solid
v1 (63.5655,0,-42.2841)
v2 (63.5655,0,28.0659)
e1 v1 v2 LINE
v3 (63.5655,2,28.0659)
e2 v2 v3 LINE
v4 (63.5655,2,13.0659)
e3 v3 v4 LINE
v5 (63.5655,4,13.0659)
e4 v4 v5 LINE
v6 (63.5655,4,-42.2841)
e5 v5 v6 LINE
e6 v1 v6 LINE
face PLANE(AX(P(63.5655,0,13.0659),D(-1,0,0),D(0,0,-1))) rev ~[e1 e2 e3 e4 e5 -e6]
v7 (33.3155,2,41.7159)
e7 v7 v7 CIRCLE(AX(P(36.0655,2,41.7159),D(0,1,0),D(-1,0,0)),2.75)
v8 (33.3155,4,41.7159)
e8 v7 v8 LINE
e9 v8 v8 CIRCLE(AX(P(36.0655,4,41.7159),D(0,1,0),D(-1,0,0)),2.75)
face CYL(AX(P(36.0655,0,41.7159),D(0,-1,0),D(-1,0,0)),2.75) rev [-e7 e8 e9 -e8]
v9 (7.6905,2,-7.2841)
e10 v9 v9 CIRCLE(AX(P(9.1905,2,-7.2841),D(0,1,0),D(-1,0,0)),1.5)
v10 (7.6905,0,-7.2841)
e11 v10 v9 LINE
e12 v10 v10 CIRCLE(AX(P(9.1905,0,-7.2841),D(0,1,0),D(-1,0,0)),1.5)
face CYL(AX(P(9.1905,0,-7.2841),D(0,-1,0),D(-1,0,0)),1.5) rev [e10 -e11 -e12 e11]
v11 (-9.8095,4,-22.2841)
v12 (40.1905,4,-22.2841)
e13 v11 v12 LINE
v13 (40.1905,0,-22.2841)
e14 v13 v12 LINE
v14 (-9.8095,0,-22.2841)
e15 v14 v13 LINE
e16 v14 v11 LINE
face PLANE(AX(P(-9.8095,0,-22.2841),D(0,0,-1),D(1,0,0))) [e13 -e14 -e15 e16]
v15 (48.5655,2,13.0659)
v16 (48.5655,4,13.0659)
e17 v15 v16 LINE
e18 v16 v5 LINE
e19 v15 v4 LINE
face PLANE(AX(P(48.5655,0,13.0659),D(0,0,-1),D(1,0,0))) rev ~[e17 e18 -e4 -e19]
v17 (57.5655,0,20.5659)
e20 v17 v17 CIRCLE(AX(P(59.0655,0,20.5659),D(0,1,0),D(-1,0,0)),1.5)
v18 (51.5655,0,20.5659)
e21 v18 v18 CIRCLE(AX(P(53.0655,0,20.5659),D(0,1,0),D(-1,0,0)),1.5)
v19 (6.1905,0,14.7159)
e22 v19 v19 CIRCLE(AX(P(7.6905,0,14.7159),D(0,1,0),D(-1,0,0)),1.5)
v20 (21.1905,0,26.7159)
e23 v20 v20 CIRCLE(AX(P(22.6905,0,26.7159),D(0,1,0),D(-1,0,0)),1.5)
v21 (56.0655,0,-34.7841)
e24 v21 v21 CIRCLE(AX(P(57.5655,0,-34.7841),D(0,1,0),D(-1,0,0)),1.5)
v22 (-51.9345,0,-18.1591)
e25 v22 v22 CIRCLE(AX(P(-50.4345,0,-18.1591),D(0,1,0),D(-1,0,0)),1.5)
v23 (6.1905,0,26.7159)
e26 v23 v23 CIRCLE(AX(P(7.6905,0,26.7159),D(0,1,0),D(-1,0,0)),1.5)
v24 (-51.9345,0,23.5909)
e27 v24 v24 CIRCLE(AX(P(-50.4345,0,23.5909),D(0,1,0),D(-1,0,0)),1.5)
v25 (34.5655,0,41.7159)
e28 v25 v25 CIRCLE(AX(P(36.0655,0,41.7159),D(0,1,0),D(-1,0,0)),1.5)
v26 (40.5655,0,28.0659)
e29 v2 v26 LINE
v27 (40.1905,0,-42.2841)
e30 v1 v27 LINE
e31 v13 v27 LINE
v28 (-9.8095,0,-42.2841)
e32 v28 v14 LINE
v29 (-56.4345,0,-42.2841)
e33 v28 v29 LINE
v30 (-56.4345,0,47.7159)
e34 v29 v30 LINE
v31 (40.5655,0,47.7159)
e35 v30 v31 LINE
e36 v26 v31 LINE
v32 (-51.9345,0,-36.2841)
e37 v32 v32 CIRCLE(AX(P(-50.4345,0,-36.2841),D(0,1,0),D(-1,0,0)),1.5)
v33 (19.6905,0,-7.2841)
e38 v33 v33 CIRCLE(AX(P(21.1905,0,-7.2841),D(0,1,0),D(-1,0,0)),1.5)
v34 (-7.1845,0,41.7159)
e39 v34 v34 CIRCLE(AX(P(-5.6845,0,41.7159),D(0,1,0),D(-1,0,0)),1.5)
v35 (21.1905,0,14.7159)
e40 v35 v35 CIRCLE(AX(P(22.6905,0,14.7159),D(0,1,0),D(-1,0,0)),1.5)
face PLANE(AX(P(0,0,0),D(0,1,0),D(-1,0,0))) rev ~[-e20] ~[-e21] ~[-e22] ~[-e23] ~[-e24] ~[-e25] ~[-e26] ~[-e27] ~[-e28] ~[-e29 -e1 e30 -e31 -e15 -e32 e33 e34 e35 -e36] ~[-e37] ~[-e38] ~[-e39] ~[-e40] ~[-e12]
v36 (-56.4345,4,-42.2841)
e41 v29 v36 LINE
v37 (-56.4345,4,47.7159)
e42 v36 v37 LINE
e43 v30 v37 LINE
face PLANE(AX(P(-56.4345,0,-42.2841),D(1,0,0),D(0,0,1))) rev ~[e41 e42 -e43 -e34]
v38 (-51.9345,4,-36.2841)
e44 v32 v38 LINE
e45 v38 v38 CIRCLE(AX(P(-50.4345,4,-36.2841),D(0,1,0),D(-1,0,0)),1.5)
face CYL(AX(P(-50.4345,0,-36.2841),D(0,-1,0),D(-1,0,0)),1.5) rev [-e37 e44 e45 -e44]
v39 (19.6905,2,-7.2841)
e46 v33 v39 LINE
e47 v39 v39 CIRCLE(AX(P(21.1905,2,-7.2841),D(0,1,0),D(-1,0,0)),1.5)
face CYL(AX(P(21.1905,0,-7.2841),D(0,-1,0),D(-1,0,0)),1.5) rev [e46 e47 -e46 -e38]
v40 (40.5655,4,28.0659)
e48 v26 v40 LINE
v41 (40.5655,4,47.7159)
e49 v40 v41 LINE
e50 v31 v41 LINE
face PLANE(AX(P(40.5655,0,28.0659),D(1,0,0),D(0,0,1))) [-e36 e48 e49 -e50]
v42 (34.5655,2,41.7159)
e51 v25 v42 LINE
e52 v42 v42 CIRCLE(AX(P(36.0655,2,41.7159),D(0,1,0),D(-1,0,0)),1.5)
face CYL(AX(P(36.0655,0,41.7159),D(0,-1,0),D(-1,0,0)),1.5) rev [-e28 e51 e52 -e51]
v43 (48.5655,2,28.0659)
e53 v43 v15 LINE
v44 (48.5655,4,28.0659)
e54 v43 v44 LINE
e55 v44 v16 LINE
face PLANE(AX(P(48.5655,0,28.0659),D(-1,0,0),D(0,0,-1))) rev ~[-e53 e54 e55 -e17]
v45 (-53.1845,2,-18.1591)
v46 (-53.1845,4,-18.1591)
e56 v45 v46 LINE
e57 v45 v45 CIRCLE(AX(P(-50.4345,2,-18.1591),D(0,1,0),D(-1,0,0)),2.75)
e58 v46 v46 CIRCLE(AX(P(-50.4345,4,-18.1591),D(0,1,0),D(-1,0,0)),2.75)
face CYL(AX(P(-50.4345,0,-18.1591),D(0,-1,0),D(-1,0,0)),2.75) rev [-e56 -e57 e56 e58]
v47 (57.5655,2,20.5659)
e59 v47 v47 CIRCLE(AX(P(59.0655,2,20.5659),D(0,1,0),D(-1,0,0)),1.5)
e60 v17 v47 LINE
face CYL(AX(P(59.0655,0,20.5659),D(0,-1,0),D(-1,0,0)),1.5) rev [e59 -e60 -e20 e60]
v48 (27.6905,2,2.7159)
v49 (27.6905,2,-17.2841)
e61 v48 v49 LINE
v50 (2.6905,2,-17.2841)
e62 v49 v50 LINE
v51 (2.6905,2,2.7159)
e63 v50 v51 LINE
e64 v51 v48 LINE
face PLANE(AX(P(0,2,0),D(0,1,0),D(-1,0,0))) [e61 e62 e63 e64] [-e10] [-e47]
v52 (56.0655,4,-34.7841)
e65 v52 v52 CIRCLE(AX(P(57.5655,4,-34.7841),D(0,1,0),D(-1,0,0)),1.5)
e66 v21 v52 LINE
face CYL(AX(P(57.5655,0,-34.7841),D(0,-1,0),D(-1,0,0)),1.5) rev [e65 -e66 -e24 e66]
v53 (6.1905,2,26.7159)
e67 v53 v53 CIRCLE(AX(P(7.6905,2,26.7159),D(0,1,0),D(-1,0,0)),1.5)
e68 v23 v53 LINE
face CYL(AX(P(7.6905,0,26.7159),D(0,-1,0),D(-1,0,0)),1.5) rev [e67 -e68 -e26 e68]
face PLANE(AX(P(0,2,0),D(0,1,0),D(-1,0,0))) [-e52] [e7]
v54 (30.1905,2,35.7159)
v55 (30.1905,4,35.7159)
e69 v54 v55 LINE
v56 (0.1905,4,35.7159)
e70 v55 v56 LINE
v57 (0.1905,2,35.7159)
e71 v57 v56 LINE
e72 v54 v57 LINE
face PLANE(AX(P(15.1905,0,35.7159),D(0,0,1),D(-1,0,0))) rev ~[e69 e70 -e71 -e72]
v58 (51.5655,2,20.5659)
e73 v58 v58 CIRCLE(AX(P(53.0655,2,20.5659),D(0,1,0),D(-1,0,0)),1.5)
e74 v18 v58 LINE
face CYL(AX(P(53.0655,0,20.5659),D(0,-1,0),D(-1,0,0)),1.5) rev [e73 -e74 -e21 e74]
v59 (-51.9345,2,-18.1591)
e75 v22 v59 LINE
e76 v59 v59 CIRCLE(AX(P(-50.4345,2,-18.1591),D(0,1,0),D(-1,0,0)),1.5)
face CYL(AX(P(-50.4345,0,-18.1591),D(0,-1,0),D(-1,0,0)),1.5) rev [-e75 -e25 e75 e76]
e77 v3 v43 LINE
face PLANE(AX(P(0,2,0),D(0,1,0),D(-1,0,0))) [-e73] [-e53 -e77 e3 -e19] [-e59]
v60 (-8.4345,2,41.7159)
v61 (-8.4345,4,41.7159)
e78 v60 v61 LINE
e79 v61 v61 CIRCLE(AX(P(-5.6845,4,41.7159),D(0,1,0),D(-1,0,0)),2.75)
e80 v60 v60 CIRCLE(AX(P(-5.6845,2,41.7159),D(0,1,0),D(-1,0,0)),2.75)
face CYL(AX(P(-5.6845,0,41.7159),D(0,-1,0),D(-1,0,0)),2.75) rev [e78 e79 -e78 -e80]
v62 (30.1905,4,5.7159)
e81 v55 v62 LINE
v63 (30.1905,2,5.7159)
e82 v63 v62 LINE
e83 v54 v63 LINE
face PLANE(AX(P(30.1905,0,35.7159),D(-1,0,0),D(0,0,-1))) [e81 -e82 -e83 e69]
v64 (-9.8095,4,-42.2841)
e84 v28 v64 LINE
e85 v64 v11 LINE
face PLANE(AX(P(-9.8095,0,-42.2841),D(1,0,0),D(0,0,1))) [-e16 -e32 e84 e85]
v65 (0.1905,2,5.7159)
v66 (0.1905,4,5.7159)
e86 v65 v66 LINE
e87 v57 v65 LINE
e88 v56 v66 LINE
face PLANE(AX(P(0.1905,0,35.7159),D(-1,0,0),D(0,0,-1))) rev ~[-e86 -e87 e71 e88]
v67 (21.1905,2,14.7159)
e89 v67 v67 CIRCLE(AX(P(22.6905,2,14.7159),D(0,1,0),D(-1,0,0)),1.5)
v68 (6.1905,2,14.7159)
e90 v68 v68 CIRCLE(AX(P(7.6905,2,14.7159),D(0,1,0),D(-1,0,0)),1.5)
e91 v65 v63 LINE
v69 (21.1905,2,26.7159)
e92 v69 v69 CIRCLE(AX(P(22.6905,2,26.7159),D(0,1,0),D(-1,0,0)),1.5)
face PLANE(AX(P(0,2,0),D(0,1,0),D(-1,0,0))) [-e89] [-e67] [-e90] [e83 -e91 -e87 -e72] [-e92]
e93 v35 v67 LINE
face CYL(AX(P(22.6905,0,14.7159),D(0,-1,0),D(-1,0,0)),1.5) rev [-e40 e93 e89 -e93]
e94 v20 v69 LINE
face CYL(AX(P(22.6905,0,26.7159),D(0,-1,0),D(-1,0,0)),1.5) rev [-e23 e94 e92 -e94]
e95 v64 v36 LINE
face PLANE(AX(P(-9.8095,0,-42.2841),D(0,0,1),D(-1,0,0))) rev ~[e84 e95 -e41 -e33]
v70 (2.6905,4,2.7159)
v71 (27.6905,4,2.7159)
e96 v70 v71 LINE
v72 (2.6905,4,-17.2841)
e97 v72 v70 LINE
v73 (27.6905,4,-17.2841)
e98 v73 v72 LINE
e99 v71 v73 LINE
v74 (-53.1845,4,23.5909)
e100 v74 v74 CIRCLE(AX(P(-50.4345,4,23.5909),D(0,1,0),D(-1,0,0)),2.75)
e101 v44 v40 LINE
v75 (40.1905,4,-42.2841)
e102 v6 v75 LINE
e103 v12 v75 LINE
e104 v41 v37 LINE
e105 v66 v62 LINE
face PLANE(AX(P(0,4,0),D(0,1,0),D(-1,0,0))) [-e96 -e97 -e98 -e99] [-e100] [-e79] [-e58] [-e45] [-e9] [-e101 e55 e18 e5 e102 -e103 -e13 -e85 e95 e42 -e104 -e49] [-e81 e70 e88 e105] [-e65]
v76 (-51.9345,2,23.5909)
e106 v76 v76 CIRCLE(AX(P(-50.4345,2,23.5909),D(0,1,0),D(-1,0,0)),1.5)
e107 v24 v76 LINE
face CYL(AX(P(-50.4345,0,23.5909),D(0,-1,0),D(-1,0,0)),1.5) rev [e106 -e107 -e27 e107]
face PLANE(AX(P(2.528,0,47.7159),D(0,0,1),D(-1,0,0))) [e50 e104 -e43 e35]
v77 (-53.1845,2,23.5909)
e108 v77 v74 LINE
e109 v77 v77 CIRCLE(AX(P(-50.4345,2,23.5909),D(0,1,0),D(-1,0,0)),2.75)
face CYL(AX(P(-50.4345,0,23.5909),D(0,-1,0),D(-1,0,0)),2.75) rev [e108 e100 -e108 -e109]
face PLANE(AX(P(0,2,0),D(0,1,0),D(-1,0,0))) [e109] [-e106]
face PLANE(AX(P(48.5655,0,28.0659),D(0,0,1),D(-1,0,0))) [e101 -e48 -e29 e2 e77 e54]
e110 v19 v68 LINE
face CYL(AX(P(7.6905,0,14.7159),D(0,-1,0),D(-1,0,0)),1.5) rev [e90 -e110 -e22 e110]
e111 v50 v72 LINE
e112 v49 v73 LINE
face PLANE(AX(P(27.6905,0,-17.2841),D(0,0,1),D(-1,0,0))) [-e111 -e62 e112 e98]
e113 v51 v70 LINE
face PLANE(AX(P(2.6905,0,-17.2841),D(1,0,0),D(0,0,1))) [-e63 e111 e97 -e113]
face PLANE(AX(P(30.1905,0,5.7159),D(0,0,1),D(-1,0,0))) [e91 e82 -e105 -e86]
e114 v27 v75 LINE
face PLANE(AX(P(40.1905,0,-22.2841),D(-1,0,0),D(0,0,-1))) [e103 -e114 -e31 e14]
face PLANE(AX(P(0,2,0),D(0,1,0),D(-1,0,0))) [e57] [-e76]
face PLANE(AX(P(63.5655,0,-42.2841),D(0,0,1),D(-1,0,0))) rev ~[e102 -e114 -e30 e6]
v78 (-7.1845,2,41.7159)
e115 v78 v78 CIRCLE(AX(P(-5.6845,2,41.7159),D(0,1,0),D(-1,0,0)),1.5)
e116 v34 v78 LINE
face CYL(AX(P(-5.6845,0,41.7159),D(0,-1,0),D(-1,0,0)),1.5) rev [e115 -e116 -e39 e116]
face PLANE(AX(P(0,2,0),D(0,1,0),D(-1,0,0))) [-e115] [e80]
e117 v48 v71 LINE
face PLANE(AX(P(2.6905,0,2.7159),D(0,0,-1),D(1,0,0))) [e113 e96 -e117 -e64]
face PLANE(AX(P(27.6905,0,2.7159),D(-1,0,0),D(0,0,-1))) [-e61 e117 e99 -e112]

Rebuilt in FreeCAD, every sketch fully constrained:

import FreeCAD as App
import Part
import Sketcher


def add_polygon(sketch, points):
    """Adds a closed chain of lines whose ends are joined by coincident constraints."""
    first, n = sketch.GeometryCount, len(points)
    for a, b in zip(points, points[1:] + points[:1]):
        sketch.addGeometry(Part.LineSegment(App.Vector(*a, 0), App.Vector(*b, 0)), False)
    for i in range(n):
        sketch.addConstraint(Sketcher.Constraint("Coincident", first + i, 2, first + (i + 1) % n, 1))

doc = App.newDocument("Part")
body = doc.addObject("PartDesign::Body", "Body")

# Sketch on XZ plane
sketch1 = body.newObject("Sketcher::SketchObject", "Sketch")
sketch1.AttachmentSupport = (doc.getObject("XZ_Plane"), [""])
sketch1.MapMode = "FlatFace"
add_polygon(sketch1, [(-56.4, 47.7), (40.6, 47.7), (40.6, 28.1), (48.6, 28.1), (48.6, 13.1), (63.6, 13.1), (63.6, -42.3), (40.2, -42.3), (40.2, -22.3), (-9.8, -22.3), (-9.8, -42.3), (-56.4, -42.3)])  # lines 0-11
sketch1.addGeometry(Part.Circle(App.Vector(57.6, -34.8, 0), App.Vector(0, 0, 1), 1.5), False)  # 12
add_polygon(sketch1, [(27.7, -17.3), (27.7, 2.7), (2.7, 2.7), (2.7, -17.3)])  # lines 13-16
sketch1.addGeometry(Part.Circle(App.Vector(-50.4, -36.3, 0), App.Vector(0, 0, 1), 1.5), False)  # 17
sketch1.addGeometry(Part.Circle(App.Vector(-50.4, -18.2, 0), App.Vector(0, 0, 1), 2.8), False)  # 18
add_polygon(sketch1, [(0.2, 35.7), (0.2, 5.7), (30.2, 5.7), (30.2, 35.7)])  # lines 19-22
sketch1.addGeometry(Part.Circle(App.Vector(36.1, 41.7, 0), App.Vector(0, 0, 1), 2.8), False)  # 23
sketch1.addGeometry(Part.Circle(App.Vector(-50.4, 23.6, 0), App.Vector(0, 0, 1), 2.8), False)  # 24
sketch1.addGeometry(Part.Circle(App.Vector(-5.7, 41.7, 0), App.Vector(0, 0, 1), 2.8), False)  # 25
sketch1.addConstraint(Sketcher.Constraint("Horizontal", 0))
sketch1.addConstraint(Sketcher.Constraint("Vertical", 1))
sketch1.addConstraint(Sketcher.Constraint("Horizontal", 2))
sketch1.addConstraint(Sketcher.Constraint("Vertical", 3))
sketch1.addConstraint(Sketcher.Constraint("Horizontal", 4))
sketch1.addConstraint(Sketcher.Constraint("Vertical", 5))
sketch1.addConstraint(Sketcher.Constraint("Horizontal", 6))
sketch1.addConstraint(Sketcher.Constraint("Vertical", 7))
sketch1.addConstraint(Sketcher.Constraint("Horizontal", 8))
sketch1.addConstraint(Sketcher.Constraint("Vertical", 9))
sketch1.addConstraint(Sketcher.Constraint("Horizontal", 10))
sketch1.addConstraint(Sketcher.Constraint("Vertical", 11))
sketch1.addConstraint(Sketcher.Constraint("Vertical", 13))
sketch1.addConstraint(Sketcher.Constraint("Horizontal", 14))
sketch1.addConstraint(Sketcher.Constraint("Vertical", 15))
sketch1.addConstraint(Sketcher.Constraint("Horizontal", 16))
sketch1.addConstraint(Sketcher.Constraint("Vertical", 19))
sketch1.addConstraint(Sketcher.Constraint("Horizontal", 20))
sketch1.addConstraint(Sketcher.Constraint("Vertical", 21))
sketch1.addConstraint(Sketcher.Constraint("Horizontal", 22))
sketch1.addConstraint(Sketcher.Constraint("Equal", 12, 17))
sketch1.addConstraint(Sketcher.Constraint("Equal", 18, 23))
sketch1.addConstraint(Sketcher.Constraint("Equal", 23, 24))
sketch1.addConstraint(Sketcher.Constraint("Equal", 24, 25))
sketch1.addConstraint(Sketcher.Constraint("Horizontal", 23, 3, 25, 3))
sketch1.addConstraint(Sketcher.Constraint("Horizontal", 6, 2, 9, 2))
sketch1.addConstraint(Sketcher.Constraint("Vertical", 17, 3, 18, 3))
sketch1.addConstraint(Sketcher.Constraint("Vertical", 18, 3, 24, 3))
sketch1.addConstraint(Sketcher.Constraint("Equal", 4, 3))
sketch1.addConstraint(Sketcher.Constraint("Equal", 9, 13))
sketch1.addConstraint(Sketcher.Constraint("Equal", 22, 19))
sketch1.addConstraint(Sketcher.Constraint("Diameter", 18, 5.5))
sketch1.addConstraint(Sketcher.Constraint("DistanceX", 2, 1, 2, 2, 8.0))
sketch1.addConstraint(Sketcher.Constraint("Diameter", 12, 3.0))
sketch1.addConstraint(Sketcher.Constraint("DistanceX", 2, 2, 12, 3, 9.0))
sketch1.addConstraint(Sketcher.Constraint("DistanceY", 21, 2, 0, 2, 12.0))
sketch1.addConstraint(Sketcher.Constraint("DistanceY", 5, 2, 12, 3, 7.5))
sketch1.addConstraint(Sketcher.Constraint("DistanceX", 0, 1, 0, 2, 97.0))
sketch1.addConstraint(Sketcher.Constraint("DistanceX", 4, 1, 4, 2, 15.0))
sketch1.addConstraint(Sketcher.Constraint("DistanceX", 8, 2, 8, 1, 50.0))
sketch1.addConstraint(Sketcher.Constraint("DistanceX", 14, 2, 14, 1, 25.0))
sketch1.addConstraint(Sketcher.Constraint("DistanceX", 20, 1, 20, 2, 30.0))
sketch1.addConstraint(Sketcher.Constraint("DistanceY", 7, 1, 7, 2, 20.0))
sketch1.addConstraint(Sketcher.Constraint("DistanceY", 11, 1, 11, 2, 90.0))
sketch1.addConstraint(Sketcher.Constraint("DistanceX", 17, 3, 12, 3, 108.0))
sketch1.addConstraint(Sketcher.Constraint("DistanceY", 17, 3, 23, 3, 78.0))
sketch1.addConstraint(Sketcher.Constraint("DistanceY", 23, 3, 0, 2, 6.0))
sketch1.addConstraint(Sketcher.Constraint("DistanceY", 7, 2, 13, 2, 25.0))
sketch1.addConstraint(Sketcher.Constraint("DistanceX", 8, 2, 19, 2, 10.0))
sketch1.addConstraint(Sketcher.Constraint("DistanceY", 1, 2, 1, 1, 19.65))
sketch1.addConstraint(Sketcher.Constraint("DistanceX", 23, 3, 12, 3, 21.5))
sketch1.addConstraint(Sketcher.Constraint("DistanceX", 13, 2, 7, 2, 12.5))
sketch1.addConstraint(Sketcher.Constraint("DistanceX", 6, 2, 6, 1, 23.375))
sketch1.addConstraint(Sketcher.Constraint("DistanceY", 18, 3, 24, 3, 41.75))
sketch1.addConstraint(Sketcher.Constraint("DistanceX", 25, 3, 23, 3, 41.75))
sketch1.addConstraint(Sketcher.Constraint("DistanceY", 12, 3, -1, 1, 34.784))
sketch1.addConstraint(Sketcher.Constraint("DistanceY", 18, 3, -1, 1, 18.159))
sketch1.addConstraint(Sketcher.Constraint("DistanceX", -1, 1, 12, 3, 57.5655))
pad1 = body.newObject("PartDesign::Pad", "Pad")
pad1.Profile = sketch1
pad1.Length = 4
pad1.Reversed = True

# Sketch on XZ plane
sketch2 = body.newObject("Sketcher::SketchObject", "Sketch001")
sketch2.AttachmentSupport = (doc.getObject("XZ_Plane"), [""])
sketch2.MapMode = "FlatFace"
add_polygon(sketch2, [(0.2, 5.7), (0.2, 35.7), (30.2, 35.7), (30.2, 5.7)])  # lines 0-3
sketch2.addGeometry(Part.Circle(App.Vector(7.7, 14.7, 0), App.Vector(0, 0, 1), 1.5), False)  # 4
sketch2.addGeometry(Part.Circle(App.Vector(7.7, 26.7, 0), App.Vector(0, 0, 1), 1.5), False)  # 5
sketch2.addGeometry(Part.Circle(App.Vector(22.7, 26.7, 0), App.Vector(0, 0, 1), 1.5), False)  # 6
sketch2.addGeometry(Part.Circle(App.Vector(22.7, 14.7, 0), App.Vector(0, 0, 1), 1.5), False)  # 7
sketch2.addGeometry(Part.Circle(App.Vector(-5.7, 41.7, 0), App.Vector(0, 0, 1), 2.8), False)  # 8
sketch2.addGeometry(Part.Circle(App.Vector(-5.7, 41.7, 0), App.Vector(0, 0, 1), 1.5), False)  # 9
add_polygon(sketch2, [(48.6, 13.1), (48.6, 28.1), (63.6, 28.1), (63.6, 13.1)])  # lines 10-13
sketch2.addGeometry(Part.Circle(App.Vector(59.1, 20.6, 0), App.Vector(0, 0, 1), 1.5), False)  # 14
sketch2.addGeometry(Part.Circle(App.Vector(53.1, 20.6, 0), App.Vector(0, 0, 1), 1.5), False)  # 15
sketch2.addGeometry(Part.Circle(App.Vector(-50.4, -18.2, 0), App.Vector(0, 0, 1), 2.8), False)  # 16
sketch2.addGeometry(Part.Circle(App.Vector(-50.4, -18.2, 0), App.Vector(0, 0, 1), 1.5), False)  # 17
sketch2.addGeometry(Part.Circle(App.Vector(-50.4, 23.6, 0), App.Vector(0, 0, 1), 2.8), False)  # 18
sketch2.addGeometry(Part.Circle(App.Vector(-50.4, 23.6, 0), App.Vector(0, 0, 1), 1.5), False)  # 19
sketch2.addGeometry(Part.Circle(App.Vector(36.1, 41.7, 0), App.Vector(0, 0, 1), 2.8), False)  # 20
sketch2.addGeometry(Part.Circle(App.Vector(36.1, 41.7, 0), App.Vector(0, 0, 1), 1.5), False)  # 21
add_polygon(sketch2, [(2.7, 2.7), (27.7, 2.7), (27.7, -17.3), (2.7, -17.3)])  # lines 22-25
sketch2.addGeometry(Part.Circle(App.Vector(21.2, -7.3, 0), App.Vector(0, 0, 1), 1.5), False)  # 26
sketch2.addGeometry(Part.Circle(App.Vector(9.2, -7.3, 0), App.Vector(0, 0, 1), 1.5), False)  # 27
sketch2.addConstraint(Sketcher.Constraint("Vertical", 0))
sketch2.addConstraint(Sketcher.Constraint("Horizontal", 1))
sketch2.addConstraint(Sketcher.Constraint("Vertical", 2))
sketch2.addConstraint(Sketcher.Constraint("Horizontal", 3))
sketch2.addConstraint(Sketcher.Constraint("Vertical", 10))
sketch2.addConstraint(Sketcher.Constraint("Horizontal", 11))
sketch2.addConstraint(Sketcher.Constraint("Vertical", 12))
sketch2.addConstraint(Sketcher.Constraint("Horizontal", 13))
sketch2.addConstraint(Sketcher.Constraint("Horizontal", 22))
sketch2.addConstraint(Sketcher.Constraint("Vertical", 23))
sketch2.addConstraint(Sketcher.Constraint("Horizontal", 24))
sketch2.addConstraint(Sketcher.Constraint("Vertical", 25))
sketch2.addConstraint(Sketcher.Constraint("Coincident", 9, 3, 8, 3))
sketch2.addConstraint(Sketcher.Constraint("Coincident", 17, 3, 16, 3))
sketch2.addConstraint(Sketcher.Constraint("Coincident", 19, 3, 18, 3))
sketch2.addConstraint(Sketcher.Constraint("Coincident", 21, 3, 20, 3))
sketch2.addConstraint(Sketcher.Constraint("Equal", 4, 5))
sketch2.addConstraint(Sketcher.Constraint("Equal", 5, 6))
sketch2.addConstraint(Sketcher.Constraint("Equal", 6, 7))
sketch2.addConstraint(Sketcher.Constraint("Equal", 7, 9))
sketch2.addConstraint(Sketcher.Constraint("Equal", 9, 14))
sketch2.addConstraint(Sketcher.Constraint("Equal", 14, 15))
sketch2.addConstraint(Sketcher.Constraint("Equal", 8, 16))
sketch2.addConstraint(Sketcher.Constraint("Equal", 15, 17))
sketch2.addConstraint(Sketcher.Constraint("Equal", 16, 18))
sketch2.addConstraint(Sketcher.Constraint("Equal", 17, 19))
sketch2.addConstraint(Sketcher.Constraint("Equal", 18, 20))
sketch2.addConstraint(Sketcher.Constraint("Equal", 19, 21))
sketch2.addConstraint(Sketcher.Constraint("Equal", 21, 26))
sketch2.addConstraint(Sketcher.Constraint("Equal", 26, 27))
sketch2.addConstraint(Sketcher.Constraint("Horizontal", 5, 3, 6, 3))
sketch2.addConstraint(Sketcher.Constraint("Horizontal", 4, 3, 7, 3))
sketch2.addConstraint(Sketcher.Constraint("Horizontal", 14, 3, 15, 3))
sketch2.addConstraint(Sketcher.Constraint("Horizontal", 9, 3, 20, 3))
sketch2.addConstraint(Sketcher.Constraint("Horizontal", 26, 3, 27, 3))
sketch2.addConstraint(Sketcher.Constraint("Vertical", 4, 3, 5, 3))
sketch2.addConstraint(Sketcher.Constraint("Vertical", 6, 3, 7, 3))
sketch2.addConstraint(Sketcher.Constraint("Vertical", 17, 3, 18, 3))
sketch2.addConstraint(Sketcher.Constraint("Equal", 3, 0))
sketch2.addConstraint(Sketcher.Constraint("Equal", 13, 10))
sketch2.addConstraint(Sketcher.Constraint("Diameter", 8, 5.5))
sketch2.addConstraint(Sketcher.Constraint("Diameter", 4, 3.0))
sketch2.addConstraint(Sketcher.Constraint("DistanceY", 4, 3, 5, 3, 12.0))
sketch2.addConstraint(Sketcher.Constraint("DistanceX", 27, 3, 26, 3, 12.0))
sketch2.addConstraint(Sketcher.Constraint("DistanceY", 5, 3, 0, 2, 9.0))
sketch2.addConstraint(Sketcher.Constraint("DistanceY", 2, 2, 7, 3, 9.0))
sketch2.addConstraint(Sketcher.Constraint("DistanceX", 26, 3, 2, 2, 9.0))
sketch2.addConstraint(Sketcher.Constraint("DistanceY", 22, 2, 7, 3, 12.0))
sketch2.addConstraint(Sketcher.Constraint("DistanceX", 0, 2, 5, 3, 7.5))
sketch2.addConstraint(Sketcher.Constraint("DistanceX", 6, 3, 1, 2, 7.5))
sketch2.addConstraint(Sketcher.Constraint("DistanceY", 15, 3, 10, 2, 7.5))
sketch2.addConstraint(Sketcher.Constraint("DistanceY", 12, 2, 14, 3, 7.5))
sketch2.addConstraint(Sketcher.Constraint("DistanceX", 22, 1, 22, 2, 25.0))
sketch2.addConstraint(Sketcher.Constraint("DistanceY", 23, 2, 23, 1, 20.0))
sketch2.addConstraint(Sketcher.Constraint("DistanceY", 5, 3, 8, 3, 15.0))
sketch2.addConstraint(Sketcher.Constraint("DistanceX", 15, 3, 14, 3, 6.0))
sketch2.addConstraint(Sketcher.Constraint("DistanceX", 20, 3, 15, 3, 17.0))
sketch2.addConstraint(Sketcher.Constraint("DistanceY", 26, 3, 7, 3, 22.0))
sketch2.addConstraint(Sketcher.Constraint("DistanceX", 7, 3, 22, 2, 5.0))
sketch2.addConstraint(Sketcher.Constraint("DistanceX", 10, 2, 15, 3, 4.5))
sketch2.addConstraint(Sketcher.Constraint("DistanceY", 7, 3, 14, 3, 5.85))
sketch2.addConstraint(Sketcher.Constraint("DistanceX", 8, 3, 14, 3, 64.75))
sketch2.addConstraint(Sketcher.Constraint("DistanceX", 16, 3, 8, 3, 44.75))
sketch2.addConstraint(Sketcher.Constraint("DistanceY", 16, 3, 18, 3, 41.75))
sketch2.addConstraint(Sketcher.Constraint("DistanceY", -1, 1, 4, 3, 14.716))
sketch2.addConstraint(Sketcher.Constraint("DistanceY", 16, 3, -1, 1, 18.159))
sketch2.addConstraint(Sketcher.Constraint("DistanceX", 8, 3, 5, 3, 13.375))
sketch2.addConstraint(Sketcher.Constraint("DistanceX", -1, 1, 4, 3, 7.6905))
pad2 = body.newObject("PartDesign::Pad", "Pad001")
pad2.Profile = sketch2
pad2.Length = 2
pad2.Reversed = True

doc.recompute()
